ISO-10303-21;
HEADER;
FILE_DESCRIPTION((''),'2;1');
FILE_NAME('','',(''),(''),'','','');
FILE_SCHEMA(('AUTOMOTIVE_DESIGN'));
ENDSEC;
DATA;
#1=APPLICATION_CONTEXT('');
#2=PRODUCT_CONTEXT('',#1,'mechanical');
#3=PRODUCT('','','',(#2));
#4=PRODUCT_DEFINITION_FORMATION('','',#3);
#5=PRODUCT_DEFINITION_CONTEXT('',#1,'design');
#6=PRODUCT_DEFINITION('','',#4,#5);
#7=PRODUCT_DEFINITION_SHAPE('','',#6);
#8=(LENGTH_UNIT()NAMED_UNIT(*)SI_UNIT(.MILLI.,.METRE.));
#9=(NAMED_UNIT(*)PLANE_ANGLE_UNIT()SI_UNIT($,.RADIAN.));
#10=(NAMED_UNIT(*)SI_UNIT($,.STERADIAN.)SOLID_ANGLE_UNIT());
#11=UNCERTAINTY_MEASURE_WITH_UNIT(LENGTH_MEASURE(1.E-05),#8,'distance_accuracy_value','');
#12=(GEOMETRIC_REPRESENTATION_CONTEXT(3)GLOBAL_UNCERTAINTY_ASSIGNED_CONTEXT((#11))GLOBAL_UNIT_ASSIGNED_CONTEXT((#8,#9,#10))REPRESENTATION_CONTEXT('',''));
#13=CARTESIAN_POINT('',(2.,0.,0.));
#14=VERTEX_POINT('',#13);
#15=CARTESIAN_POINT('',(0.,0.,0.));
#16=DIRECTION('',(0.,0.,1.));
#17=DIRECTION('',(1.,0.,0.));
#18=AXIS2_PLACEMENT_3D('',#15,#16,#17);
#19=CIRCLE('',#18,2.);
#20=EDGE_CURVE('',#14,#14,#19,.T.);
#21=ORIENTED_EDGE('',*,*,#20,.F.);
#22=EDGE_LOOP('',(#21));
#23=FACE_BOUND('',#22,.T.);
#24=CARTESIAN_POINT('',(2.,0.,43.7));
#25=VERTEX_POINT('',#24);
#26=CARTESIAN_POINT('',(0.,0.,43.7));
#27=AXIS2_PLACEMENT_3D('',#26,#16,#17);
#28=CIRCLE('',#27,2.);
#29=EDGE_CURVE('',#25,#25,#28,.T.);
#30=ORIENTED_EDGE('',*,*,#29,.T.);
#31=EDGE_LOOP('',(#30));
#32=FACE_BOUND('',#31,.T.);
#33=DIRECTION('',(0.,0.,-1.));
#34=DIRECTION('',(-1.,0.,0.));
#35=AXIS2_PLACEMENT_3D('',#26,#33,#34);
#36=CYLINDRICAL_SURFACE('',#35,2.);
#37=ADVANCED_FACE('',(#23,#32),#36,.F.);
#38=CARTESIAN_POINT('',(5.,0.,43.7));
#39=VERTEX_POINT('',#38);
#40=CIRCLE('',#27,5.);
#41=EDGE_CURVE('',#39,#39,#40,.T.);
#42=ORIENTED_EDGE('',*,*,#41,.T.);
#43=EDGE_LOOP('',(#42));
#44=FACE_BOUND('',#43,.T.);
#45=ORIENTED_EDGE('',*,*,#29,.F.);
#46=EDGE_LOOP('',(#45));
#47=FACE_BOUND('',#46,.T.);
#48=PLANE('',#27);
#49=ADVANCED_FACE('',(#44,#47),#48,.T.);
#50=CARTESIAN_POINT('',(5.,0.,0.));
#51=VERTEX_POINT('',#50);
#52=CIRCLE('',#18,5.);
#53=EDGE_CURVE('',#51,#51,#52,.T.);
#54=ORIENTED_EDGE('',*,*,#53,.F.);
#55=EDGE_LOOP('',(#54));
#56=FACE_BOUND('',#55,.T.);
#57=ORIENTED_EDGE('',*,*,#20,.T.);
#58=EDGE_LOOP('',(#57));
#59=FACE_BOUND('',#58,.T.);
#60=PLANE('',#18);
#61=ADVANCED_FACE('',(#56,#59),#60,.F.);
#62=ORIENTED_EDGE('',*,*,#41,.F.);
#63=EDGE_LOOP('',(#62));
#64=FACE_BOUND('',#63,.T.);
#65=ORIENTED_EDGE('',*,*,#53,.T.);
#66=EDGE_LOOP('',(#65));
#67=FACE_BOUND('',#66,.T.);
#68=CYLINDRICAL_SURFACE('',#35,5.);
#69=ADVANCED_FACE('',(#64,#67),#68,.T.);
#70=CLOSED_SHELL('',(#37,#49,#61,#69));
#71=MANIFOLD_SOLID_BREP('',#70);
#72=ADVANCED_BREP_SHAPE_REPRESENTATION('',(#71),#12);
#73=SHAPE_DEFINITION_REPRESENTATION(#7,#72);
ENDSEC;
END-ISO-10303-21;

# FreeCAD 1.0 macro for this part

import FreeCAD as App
import Part
import Sketcher

V = App.Vector

doc = App.newDocument("Part")
body = doc.addObject("PartDesign::Body", "Body")

sketch1 = body.newObject("Sketcher::SketchObject", "Sketch")
sketch1.AttachmentSupport = (doc.getObject("XY_Plane"), [""])
sketch1.MapMode = "FlatFace"
sketch1.addGeometry([
    Part.Circle(V(0, 0, 0), V(0, 0, 1), 5),
    Part.Circle(V(0, 0, 0), V(0, 0, 1), 2),
], False)
sketch1.addConstraint([
    Sketcher.Constraint("Coincident", 0, 3, -1, 1),
    Sketcher.Constraint("Coincident", 1, 3, -1, 1),
    Sketcher.Constraint("Diameter", 0, 10.0),
    Sketcher.Constraint("Diameter", 1, 4.0),
])
pad1 = body.newObject("PartDesign::Pad", "Pad")
pad1.Profile = sketch1
pad1.Length = 43.7

doc.recompute()
